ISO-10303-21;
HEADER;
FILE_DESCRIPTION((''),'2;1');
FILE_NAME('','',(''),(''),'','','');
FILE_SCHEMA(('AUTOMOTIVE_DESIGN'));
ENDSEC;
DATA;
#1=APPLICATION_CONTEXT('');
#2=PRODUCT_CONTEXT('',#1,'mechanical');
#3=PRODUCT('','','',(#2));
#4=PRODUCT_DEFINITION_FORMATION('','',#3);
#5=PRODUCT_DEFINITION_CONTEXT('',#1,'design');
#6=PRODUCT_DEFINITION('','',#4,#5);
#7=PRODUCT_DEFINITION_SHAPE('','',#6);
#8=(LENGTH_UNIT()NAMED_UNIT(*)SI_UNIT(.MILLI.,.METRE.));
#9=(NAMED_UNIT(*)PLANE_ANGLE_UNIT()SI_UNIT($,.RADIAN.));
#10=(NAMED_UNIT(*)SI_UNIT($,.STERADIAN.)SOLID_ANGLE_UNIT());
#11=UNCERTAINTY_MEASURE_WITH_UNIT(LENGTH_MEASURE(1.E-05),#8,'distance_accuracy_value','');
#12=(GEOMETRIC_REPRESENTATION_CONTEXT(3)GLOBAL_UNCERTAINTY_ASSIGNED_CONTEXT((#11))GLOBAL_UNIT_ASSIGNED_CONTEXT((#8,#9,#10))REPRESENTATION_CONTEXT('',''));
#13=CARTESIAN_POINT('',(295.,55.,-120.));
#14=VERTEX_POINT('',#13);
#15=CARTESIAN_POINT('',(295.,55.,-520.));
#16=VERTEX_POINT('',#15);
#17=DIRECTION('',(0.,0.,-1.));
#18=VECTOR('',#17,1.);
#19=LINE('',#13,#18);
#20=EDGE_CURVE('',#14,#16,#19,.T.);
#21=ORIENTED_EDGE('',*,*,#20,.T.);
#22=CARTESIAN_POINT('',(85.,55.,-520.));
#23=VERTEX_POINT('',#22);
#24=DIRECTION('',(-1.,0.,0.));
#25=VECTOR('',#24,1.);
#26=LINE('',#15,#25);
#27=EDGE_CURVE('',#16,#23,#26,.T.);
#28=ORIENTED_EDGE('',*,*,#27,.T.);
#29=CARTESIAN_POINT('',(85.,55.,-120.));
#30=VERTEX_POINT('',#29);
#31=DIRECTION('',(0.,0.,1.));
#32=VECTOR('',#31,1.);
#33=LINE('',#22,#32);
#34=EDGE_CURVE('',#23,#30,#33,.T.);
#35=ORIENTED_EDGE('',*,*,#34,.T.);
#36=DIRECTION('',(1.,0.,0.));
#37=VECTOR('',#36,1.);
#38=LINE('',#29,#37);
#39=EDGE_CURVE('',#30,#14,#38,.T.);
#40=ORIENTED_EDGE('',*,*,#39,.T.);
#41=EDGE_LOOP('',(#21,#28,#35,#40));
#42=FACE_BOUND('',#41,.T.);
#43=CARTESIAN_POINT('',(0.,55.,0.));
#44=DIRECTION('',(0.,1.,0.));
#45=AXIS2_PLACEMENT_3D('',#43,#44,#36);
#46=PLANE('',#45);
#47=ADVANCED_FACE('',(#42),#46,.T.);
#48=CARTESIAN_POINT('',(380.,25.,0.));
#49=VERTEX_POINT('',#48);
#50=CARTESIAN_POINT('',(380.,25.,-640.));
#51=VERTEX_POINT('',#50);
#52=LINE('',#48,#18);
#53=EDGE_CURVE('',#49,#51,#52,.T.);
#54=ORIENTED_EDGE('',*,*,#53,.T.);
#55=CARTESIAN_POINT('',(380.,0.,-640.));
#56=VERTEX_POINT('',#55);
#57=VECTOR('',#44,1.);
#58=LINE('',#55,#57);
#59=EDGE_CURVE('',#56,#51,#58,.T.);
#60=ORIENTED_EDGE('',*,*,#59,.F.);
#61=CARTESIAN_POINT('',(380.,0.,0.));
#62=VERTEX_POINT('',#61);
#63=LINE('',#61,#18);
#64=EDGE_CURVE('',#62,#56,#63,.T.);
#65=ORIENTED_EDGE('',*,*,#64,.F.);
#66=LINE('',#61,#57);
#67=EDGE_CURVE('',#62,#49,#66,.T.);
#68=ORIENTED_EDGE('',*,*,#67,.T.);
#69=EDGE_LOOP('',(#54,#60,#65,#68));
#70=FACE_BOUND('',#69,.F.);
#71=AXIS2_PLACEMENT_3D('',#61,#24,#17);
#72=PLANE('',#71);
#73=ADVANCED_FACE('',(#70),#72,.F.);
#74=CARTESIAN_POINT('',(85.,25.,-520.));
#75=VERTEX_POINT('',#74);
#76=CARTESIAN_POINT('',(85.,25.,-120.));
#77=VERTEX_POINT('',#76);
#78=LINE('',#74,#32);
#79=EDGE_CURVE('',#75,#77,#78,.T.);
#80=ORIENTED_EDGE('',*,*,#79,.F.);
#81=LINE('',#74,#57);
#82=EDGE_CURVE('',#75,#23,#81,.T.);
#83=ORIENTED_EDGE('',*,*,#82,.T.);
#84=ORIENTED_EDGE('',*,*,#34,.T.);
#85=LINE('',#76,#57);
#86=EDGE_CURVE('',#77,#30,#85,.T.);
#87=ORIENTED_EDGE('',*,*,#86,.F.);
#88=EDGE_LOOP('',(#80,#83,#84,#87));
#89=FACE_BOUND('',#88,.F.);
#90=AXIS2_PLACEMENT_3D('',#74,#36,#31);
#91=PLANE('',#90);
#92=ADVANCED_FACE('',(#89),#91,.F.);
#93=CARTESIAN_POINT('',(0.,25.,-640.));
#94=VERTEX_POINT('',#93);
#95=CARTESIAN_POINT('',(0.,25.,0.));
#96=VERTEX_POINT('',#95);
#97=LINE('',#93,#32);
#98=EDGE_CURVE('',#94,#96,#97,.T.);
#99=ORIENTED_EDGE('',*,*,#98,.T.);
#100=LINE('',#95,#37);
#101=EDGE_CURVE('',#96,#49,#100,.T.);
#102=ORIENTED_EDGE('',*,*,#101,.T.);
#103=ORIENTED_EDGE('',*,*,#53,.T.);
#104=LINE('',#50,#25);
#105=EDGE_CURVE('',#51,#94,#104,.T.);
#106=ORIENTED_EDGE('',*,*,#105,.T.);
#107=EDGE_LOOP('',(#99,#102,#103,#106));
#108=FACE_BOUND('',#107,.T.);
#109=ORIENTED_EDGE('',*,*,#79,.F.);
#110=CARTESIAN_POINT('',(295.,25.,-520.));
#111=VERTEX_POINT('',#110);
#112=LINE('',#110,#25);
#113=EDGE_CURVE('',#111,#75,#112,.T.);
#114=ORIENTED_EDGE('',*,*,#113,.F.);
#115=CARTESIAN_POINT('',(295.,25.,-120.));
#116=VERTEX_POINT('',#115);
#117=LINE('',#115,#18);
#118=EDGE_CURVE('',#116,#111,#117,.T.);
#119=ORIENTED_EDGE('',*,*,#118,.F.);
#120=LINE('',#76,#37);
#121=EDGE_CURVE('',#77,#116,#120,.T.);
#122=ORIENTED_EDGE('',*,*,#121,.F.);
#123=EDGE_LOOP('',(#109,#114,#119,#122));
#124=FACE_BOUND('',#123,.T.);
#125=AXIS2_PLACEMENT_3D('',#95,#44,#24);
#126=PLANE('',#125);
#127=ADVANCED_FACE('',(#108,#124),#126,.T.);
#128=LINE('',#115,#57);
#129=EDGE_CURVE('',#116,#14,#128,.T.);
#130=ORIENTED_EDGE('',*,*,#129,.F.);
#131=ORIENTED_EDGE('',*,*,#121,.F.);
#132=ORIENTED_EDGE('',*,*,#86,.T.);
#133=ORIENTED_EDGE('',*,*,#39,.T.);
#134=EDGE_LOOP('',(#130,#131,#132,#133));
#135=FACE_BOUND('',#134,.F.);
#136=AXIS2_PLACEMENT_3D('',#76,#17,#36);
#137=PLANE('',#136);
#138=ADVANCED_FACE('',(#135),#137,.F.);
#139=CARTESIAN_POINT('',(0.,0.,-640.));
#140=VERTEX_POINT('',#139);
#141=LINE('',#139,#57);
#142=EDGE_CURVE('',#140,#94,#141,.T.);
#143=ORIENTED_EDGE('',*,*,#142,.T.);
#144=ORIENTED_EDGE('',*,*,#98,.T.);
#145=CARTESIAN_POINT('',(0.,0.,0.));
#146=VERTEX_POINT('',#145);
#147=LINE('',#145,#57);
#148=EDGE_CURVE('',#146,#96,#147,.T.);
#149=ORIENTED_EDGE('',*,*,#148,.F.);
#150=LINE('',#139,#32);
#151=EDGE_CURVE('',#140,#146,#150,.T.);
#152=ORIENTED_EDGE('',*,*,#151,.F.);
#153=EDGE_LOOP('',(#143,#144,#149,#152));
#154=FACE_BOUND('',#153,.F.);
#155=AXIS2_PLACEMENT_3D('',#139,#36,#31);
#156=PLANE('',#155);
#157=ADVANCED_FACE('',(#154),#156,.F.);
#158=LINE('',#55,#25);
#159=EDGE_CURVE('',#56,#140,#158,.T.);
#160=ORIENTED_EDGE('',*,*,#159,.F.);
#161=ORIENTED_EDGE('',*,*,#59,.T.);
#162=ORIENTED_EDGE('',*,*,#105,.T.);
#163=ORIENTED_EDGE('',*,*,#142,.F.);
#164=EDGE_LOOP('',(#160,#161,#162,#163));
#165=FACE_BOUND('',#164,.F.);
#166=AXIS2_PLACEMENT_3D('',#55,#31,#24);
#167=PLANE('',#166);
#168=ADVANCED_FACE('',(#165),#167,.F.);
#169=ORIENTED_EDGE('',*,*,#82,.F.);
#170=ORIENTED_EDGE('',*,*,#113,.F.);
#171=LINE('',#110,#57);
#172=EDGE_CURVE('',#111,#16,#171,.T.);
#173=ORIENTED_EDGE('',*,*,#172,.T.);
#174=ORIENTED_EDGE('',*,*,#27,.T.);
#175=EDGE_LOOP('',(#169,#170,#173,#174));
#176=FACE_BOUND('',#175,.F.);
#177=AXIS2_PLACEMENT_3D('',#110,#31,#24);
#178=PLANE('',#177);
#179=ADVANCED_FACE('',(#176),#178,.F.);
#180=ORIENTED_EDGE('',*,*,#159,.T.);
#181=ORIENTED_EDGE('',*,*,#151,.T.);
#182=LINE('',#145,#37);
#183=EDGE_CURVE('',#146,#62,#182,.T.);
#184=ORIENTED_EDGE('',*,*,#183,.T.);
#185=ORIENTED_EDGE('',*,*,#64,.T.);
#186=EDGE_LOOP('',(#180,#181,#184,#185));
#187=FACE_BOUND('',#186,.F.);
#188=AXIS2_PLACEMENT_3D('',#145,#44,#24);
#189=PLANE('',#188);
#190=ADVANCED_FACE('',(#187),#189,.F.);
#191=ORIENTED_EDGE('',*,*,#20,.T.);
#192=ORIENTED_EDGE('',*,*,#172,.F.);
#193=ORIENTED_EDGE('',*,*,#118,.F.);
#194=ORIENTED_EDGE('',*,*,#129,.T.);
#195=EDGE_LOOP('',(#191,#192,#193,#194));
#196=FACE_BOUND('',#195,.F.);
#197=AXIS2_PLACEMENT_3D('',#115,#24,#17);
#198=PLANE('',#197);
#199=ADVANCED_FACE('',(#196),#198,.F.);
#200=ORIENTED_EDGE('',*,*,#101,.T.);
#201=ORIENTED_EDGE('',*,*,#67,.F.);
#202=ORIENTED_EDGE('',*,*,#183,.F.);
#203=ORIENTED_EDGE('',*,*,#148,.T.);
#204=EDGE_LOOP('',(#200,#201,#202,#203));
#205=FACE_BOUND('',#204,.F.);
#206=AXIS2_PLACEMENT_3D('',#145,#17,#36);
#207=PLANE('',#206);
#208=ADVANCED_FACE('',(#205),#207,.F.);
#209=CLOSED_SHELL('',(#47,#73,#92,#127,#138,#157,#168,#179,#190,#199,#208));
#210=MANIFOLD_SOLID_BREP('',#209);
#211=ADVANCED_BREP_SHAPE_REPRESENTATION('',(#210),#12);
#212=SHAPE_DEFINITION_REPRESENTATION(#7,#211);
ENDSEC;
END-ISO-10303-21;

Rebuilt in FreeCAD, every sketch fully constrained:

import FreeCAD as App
import Part
import Sketcher

V = App.Vector
Q = App.Units.Quantity

doc = App.newDocument("Part")
body = doc.addObject("PartDesign::Body", "Body")

sketch1 = body.newObject("Sketcher::SketchObject", "Sketch")
sketch1.AttachmentSupport = (doc.getObject("XZ_Plane"), [""])
sketch1.MapMode = "FlatFace"
sketch1.addGeometry(Part.LineSegment(V(0, -640, 0), V(0, 0, 0)), False)
sketch1.addGeometry(Part.LineSegment(V(0, 0, 0), V(380, 0, 0)), False)
sketch1.addGeometry(Part.LineSegment(V(380, 0, 0), V(380, -640, 0)), False)
sketch1.addGeometry(Part.LineSegment(V(380, -640, 0), V(0, -640, 0)), False)
sketch1.addConstraint(Sketcher.Constraint("Coincident", 0, 2, 1, 1))
sketch1.addConstraint(Sketcher.Constraint("Coincident", 1, 2, 2, 1))
sketch1.addConstraint(Sketcher.Constraint("Coincident", 2, 2, 3, 1))
sketch1.addConstraint(Sketcher.Constraint("Coincident", 3, 2, 0, 1))
sketch1.addConstraint(Sketcher.Constraint("Vertical", 0))
sketch1.addConstraint(Sketcher.Constraint("Horizontal", 1))
sketch1.addConstraint(Sketcher.Constraint("Vertical", 2))
sketch1.addConstraint(Sketcher.Constraint("Horizontal", 3))
sketch1.addConstraint(Sketcher.Constraint("Coincident", 0, 2, -1, 1))
sketch1.addConstraint(Sketcher.Constraint("DistanceX", 1, 1, 1, 2, Q("380 mm")))
sketch1.addConstraint(Sketcher.Constraint("DistanceY", 0, 1, 0, 2, Q("640 mm")))
pad1 = body.newObject("PartDesign::Pad", "Pad")
pad1.Profile = sketch1
pad1.Length = 25
pad1.Reversed = True

sketch2 = body.newObject("Sketcher::SketchObject", "Sketch001")
sketch2.AttachmentSupport = (doc.getObject("XZ_Plane"), [""])
sketch2.MapMode = "FlatFace"
sketch2.AttachmentOffset = App.Placement(V(0, 0, -25), App.Rotation())
sketch2.addGeometry(Part.LineSegment(V(85, -520, 0), V(85, -120, 0)), False)
sketch2.addGeometry(Part.LineSegment(V(85, -120, 0), V(295, -120, 0)), False)
sketch2.addGeometry(Part.LineSegment(V(295, -120, 0), V(295, -520, 0)), False)
sketch2.addGeometry(Part.LineSegment(V(295, -520, 0), V(85, -520, 0)), False)
sketch2.addConstraint(Sketcher.Constraint("Coincident", 0, 2, 1, 1))
sketch2.addConstraint(Sketcher.Constraint("Coincident", 1, 2, 2, 1))
sketch2.addConstraint(Sketcher.Constraint("Coincident", 2, 2, 3, 1))
sketch2.addConstraint(Sketcher.Constraint("Coincident", 3, 2, 0, 1))
sketch2.addConstraint(Sketcher.Constraint("Vertical", 0))
sketch2.addConstraint(Sketcher.Constraint("Horizontal", 1))
sketch2.addConstraint(Sketcher.Constraint("Vertical", 2))
sketch2.addConstraint(Sketcher.Constraint("Horizontal", 3))
sketch2.addConstraint(Sketcher.Constraint("DistanceX", 1, 1, 1, 2, Q("210 mm")))
sketch2.addConstraint(Sketcher.Constraint("DistanceY", 0, 1, 0, 2, Q("400 mm")))
sketch2.addConstraint(Sketcher.Constraint("DistanceX", -1, 1, 0, 2, Q("85 mm")))
sketch2.addConstraint(Sketcher.Constraint("DistanceY", 0, 2, -1, 1, Q("120 mm")))
pad2 = body.newObject("PartDesign::Pad", "Pad001")
pad2.Profile = sketch2
pad2.Length = 30
pad2.Reversed = True

doc.recompute()
